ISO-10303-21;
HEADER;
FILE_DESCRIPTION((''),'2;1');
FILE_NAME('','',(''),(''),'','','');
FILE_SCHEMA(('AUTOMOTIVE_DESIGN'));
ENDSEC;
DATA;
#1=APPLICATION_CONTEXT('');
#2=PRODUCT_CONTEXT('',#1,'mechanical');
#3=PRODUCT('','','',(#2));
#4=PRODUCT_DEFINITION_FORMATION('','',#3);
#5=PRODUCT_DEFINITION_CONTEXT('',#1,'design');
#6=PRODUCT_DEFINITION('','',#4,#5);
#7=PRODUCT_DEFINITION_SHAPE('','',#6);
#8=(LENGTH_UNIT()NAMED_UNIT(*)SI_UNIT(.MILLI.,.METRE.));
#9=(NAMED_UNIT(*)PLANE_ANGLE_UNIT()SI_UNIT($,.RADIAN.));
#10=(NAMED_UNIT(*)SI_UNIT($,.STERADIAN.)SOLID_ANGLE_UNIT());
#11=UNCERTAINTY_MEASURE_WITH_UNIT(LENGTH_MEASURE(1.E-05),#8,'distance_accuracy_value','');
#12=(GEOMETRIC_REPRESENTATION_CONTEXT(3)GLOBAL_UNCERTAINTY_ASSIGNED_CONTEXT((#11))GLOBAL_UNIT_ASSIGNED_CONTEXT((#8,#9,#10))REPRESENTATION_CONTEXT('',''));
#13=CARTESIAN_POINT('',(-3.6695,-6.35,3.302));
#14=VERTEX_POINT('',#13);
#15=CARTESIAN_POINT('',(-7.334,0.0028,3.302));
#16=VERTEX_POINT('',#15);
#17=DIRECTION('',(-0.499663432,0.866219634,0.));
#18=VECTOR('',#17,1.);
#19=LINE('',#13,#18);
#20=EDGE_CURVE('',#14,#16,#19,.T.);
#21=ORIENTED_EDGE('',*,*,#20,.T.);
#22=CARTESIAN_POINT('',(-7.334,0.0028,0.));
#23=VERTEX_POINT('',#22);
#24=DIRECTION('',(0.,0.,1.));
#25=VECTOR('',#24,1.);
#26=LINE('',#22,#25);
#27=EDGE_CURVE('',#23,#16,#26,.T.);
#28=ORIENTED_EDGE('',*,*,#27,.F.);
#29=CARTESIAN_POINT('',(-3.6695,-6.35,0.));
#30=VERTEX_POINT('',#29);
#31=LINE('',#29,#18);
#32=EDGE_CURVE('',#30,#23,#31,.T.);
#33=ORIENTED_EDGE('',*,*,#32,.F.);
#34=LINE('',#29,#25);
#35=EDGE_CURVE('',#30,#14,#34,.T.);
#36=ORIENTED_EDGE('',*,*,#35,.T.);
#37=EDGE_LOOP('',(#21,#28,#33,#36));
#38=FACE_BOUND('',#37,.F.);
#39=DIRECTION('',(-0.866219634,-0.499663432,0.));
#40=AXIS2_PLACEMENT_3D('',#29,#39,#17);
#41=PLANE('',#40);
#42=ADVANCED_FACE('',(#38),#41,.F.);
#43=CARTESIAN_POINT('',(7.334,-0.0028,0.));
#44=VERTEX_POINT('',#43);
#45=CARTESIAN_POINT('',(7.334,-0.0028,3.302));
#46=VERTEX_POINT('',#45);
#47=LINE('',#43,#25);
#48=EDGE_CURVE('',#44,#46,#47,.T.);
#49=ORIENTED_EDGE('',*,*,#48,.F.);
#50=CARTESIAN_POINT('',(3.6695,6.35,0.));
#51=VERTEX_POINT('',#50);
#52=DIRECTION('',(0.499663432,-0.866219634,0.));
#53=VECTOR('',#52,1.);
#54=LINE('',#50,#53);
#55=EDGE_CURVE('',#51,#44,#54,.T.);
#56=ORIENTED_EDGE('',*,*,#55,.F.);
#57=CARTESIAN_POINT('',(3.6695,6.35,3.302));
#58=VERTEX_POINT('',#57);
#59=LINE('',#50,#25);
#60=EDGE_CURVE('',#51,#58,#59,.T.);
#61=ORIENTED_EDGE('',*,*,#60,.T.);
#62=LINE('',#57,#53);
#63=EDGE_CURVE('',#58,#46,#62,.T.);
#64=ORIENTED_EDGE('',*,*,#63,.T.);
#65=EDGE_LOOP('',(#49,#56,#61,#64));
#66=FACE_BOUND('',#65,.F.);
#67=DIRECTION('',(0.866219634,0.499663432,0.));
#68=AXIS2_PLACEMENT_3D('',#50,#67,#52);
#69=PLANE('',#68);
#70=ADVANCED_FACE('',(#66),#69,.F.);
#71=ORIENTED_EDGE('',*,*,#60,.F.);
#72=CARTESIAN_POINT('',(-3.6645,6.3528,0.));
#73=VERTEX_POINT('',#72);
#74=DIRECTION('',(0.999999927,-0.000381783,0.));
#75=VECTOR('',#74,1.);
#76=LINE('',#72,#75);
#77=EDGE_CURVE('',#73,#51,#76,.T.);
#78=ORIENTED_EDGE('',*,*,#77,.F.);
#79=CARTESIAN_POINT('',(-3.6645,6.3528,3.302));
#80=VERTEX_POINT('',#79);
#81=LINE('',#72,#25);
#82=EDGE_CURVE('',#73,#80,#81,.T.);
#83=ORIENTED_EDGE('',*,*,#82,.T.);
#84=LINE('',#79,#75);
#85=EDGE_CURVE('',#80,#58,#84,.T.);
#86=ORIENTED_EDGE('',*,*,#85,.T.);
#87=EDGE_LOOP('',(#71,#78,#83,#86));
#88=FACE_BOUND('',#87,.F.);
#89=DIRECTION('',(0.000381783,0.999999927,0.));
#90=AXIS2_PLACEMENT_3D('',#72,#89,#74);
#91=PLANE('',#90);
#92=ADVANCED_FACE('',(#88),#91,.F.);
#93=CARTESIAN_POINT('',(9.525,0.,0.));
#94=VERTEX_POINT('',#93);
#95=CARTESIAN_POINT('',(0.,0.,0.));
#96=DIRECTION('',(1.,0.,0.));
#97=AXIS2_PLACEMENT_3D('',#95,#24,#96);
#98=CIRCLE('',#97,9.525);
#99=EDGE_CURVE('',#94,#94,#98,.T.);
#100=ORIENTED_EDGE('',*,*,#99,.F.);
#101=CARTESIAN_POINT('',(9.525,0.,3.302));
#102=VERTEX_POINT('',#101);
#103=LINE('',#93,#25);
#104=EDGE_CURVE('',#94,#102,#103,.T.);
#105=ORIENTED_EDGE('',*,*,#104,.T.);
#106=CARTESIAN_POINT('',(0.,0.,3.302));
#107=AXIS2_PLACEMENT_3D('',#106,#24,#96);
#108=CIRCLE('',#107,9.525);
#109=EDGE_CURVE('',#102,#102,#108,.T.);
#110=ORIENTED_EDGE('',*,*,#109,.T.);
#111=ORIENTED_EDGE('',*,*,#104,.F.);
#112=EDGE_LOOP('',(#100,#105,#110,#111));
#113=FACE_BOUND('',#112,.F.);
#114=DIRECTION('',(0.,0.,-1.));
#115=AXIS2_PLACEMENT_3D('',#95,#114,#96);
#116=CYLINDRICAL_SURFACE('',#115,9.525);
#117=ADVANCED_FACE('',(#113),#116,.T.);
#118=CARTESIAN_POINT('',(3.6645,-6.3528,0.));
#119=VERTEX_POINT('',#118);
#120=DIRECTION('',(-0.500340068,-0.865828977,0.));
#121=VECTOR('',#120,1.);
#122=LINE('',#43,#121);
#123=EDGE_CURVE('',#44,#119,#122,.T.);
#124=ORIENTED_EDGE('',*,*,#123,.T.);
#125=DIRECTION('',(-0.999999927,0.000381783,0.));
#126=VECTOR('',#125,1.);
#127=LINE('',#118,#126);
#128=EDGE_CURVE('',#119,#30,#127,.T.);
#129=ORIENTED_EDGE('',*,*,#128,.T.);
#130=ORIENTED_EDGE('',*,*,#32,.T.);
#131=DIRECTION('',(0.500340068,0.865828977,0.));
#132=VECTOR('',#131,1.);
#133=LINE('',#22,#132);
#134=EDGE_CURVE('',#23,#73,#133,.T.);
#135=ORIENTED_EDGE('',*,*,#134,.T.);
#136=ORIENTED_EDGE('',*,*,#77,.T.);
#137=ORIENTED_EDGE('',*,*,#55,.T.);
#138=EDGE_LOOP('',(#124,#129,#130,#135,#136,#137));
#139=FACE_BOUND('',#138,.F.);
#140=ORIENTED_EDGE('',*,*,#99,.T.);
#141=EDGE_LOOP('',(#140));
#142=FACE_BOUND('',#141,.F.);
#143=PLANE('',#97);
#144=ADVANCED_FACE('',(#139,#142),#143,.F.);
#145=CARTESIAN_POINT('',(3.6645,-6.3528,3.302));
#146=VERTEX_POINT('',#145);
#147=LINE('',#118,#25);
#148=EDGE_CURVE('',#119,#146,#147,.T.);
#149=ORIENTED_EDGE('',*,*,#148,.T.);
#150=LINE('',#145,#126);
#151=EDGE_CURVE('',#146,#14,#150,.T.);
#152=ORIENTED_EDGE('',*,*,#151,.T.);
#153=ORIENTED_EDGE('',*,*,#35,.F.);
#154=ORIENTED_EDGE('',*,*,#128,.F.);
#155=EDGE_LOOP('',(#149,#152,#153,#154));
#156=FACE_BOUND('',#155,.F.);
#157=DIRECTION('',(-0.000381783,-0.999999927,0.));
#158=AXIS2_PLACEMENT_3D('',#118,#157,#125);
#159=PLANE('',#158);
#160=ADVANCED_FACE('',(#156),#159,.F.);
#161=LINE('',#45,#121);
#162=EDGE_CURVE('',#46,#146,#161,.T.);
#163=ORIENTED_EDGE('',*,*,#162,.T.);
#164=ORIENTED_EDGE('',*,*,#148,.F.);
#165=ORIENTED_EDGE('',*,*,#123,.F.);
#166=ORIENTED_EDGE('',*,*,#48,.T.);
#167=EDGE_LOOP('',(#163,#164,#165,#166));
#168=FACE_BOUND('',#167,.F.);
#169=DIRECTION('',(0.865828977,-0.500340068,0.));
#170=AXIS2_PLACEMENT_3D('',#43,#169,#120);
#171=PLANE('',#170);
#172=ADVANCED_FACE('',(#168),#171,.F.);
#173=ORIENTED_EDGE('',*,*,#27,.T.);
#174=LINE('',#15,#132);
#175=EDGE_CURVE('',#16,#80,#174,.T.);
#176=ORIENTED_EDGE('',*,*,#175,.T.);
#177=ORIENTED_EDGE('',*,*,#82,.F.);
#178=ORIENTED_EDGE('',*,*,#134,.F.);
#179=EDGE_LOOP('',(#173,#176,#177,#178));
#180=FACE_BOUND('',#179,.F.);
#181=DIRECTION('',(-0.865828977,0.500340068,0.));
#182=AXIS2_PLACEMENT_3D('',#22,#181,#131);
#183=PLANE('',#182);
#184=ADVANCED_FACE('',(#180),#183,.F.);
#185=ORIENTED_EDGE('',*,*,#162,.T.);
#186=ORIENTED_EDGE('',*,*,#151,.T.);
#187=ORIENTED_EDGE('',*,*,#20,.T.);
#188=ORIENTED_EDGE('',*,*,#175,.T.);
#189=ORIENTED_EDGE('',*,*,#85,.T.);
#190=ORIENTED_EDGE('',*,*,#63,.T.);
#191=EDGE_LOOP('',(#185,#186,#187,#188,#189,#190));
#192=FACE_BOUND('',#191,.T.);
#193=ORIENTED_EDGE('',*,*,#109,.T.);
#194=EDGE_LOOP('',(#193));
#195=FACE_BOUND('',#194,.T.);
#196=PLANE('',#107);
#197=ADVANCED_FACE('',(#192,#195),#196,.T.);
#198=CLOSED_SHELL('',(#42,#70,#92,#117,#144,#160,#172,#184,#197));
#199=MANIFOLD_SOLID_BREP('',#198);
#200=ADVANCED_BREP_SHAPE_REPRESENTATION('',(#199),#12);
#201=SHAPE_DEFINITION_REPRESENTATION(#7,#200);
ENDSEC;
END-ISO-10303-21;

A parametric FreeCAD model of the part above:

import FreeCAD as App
import Part
import Sketcher

V = App.Vector
Q = App.Units.Quantity

doc = App.newDocument("Part")
body = doc.addObject("PartDesign::Body", "Body")

# Sketch on XY plane
sketch1 = doc.addObject("Sketcher::SketchObject", "Sketch")
body.addObject(sketch1)
sketch1.AttachmentSupport = (doc.XY_Plane, [""])
sketch1.MapMode = "FlatFace"
sketch1.addGeometry(Part.Circle(V(0, 0, 0), V(0, 0, 1), 10), False)
sketch1.addGeometry(Part.LineSegment(V(-4, 6, 0), V(4, 6, 0)), False)
sketch1.addGeometry(Part.LineSegment(V(4, 6, 0), V(7, 0, 0)), False)
sketch1.addGeometry(Part.LineSegment(V(7, 0, 0), V(4, -6, 0)), False)
sketch1.addGeometry(Part.LineSegment(V(4, -6, 0), V(-4, -6, 0)), False)
sketch1.addGeometry(Part.LineSegment(V(-4, -6, 0), V(-7, 0, 0)), False)
sketch1.addGeometry(Part.LineSegment(V(-7, 0, 0), V(-4, 6, 0)), False)
sketch1.addConstraint(Sketcher.Constraint("Coincident", 1, 2, 2, 1))
sketch1.addConstraint(Sketcher.Constraint("Coincident", 2, 2, 3, 1))
sketch1.addConstraint(Sketcher.Constraint("Coincident", 3, 2, 4, 1))
sketch1.addConstraint(Sketcher.Constraint("Coincident", 4, 2, 5, 1))
sketch1.addConstraint(Sketcher.Constraint("Coincident", 5, 2, 6, 1))
sketch1.addConstraint(Sketcher.Constraint("Coincident", 6, 2, 1, 1))
sketch1.addConstraint(Sketcher.Constraint("Coincident", 0, 3, -1, 1))
sketch1.addConstraint(Sketcher.Constraint("Symmetric", 1, 2, 4, 2, -1, 1))
sketch1.addConstraint(Sketcher.Constraint("Symmetric", 2, 2, 5, 2, -1, 1))
sketch1.addConstraint(Sketcher.Constraint("Symmetric", 3, 2, 6, 2, -1, 1))
sketch1.addConstraint(Sketcher.Constraint("Equal", 1, 2))
sketch1.addConstraint(Sketcher.Constraint("Equal", 2, 3))
sketch1.addConstraint(Sketcher.Constraint("Diameter", 0, Q("0.75 in")))
sketch1.addConstraint(Sketcher.Constraint("DistanceY", -1, 1, 1, 2, Q("0.25 in")))
sketch1.addConstraint(Sketcher.Constraint("DistanceY", 3, 2, 2, 2, Q("0.25 in")))
sketch1.addConstraint(Sketcher.Constraint("DistanceX", 5, 2, 3, 2, Q("0.433 in")))
sketch1.addConstraint(Sketcher.Constraint("DistanceY", 2, 2, -1, 1, Q("0.0001 in")))
pad1 = doc.addObject("PartDesign::Pad", "Pad")
body.addObject(pad1)
pad1.Profile = sketch1
pad1.Length = Q("0.13 in")

doc.recompute()
